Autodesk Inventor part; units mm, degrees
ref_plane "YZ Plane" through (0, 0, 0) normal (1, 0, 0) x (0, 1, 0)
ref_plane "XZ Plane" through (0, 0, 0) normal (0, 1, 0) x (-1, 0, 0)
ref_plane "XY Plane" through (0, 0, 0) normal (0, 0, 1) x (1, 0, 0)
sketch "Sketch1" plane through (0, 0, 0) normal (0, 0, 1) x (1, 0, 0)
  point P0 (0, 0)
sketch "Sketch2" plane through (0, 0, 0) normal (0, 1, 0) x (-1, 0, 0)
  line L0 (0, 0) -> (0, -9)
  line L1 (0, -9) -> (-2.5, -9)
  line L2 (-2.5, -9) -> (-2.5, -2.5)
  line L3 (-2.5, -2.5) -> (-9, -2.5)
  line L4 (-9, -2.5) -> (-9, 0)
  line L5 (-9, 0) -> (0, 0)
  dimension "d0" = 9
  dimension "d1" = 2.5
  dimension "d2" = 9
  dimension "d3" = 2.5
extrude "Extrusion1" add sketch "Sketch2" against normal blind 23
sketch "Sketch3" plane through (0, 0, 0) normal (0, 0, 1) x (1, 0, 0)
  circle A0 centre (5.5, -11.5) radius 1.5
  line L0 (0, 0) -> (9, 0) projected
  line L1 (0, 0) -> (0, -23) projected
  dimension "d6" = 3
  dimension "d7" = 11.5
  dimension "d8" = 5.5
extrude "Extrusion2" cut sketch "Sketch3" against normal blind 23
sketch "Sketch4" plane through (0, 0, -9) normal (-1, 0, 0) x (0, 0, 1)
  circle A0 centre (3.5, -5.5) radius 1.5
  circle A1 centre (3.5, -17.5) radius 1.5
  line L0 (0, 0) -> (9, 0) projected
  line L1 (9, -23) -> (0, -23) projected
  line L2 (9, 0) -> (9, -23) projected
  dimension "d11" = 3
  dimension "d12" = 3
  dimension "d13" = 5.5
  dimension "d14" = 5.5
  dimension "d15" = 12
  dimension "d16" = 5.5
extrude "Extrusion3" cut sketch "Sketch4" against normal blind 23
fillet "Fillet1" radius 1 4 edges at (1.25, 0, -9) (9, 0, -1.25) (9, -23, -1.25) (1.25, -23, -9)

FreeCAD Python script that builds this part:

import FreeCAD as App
import Part
import Sketcher
from FreeCAD import Vector
Q = App.Units.Quantity


def edges_at(feature, points):
    """Names of the edges that pass closest to the given points."""
    edges = feature.Shape.Edges
    near = lambda p: min(range(len(edges)), key=lambda i: edges[i].distToShape(Part.Vertex(*p))[0])
    return sorted({f"Edge{near(p) + 1}" for p in points})

doc = App.newDocument("Part")
params = doc.addObject("Spreadsheet::Sheet", "Params")
for row, (alias, value) in enumerate([
    ("sketch1_width", "9 mm"),
    ("sketch1_width2", "2.5 mm"),
    ("pad1_length", "23 mm"),
    ("sketch2_diameter", "3 mm"),
    ("pocket1_length", "23 mm"),
    ("sketch3_diameter", "3 mm"),
    ("pocket2_length", "23 mm"),
    ("fillet_radius", "1 mm"),
], start=1):
    params.set(f"A{row}", alias)
    params.set(f"B{row}", "=" + value)
    params.setAlias(f"B{row}", alias)

body = doc.addObject("PartDesign::Body", "Body")

# Sketch on XZ plane
sketch1 = body.newObject("Sketcher::SketchObject", "Sketch")
sketch1.AttachmentSupport = (doc.getObject("XZ_Plane"), [""])
sketch1.MapMode = "FlatFace"
sketch1.addGeometry([
    Part.LineSegment(Vector(0, -9, 0), Vector(0, 0, 0)),  # 0
    Part.LineSegment(Vector(0, 0, 0), Vector(9, 0, 0)),  # 1
    Part.LineSegment(Vector(9, 0, 0), Vector(9, -2.5, 0)),  # 2
    Part.LineSegment(Vector(9, -2.5, 0), Vector(2.5, -2.5, 0)),  # 3
    Part.LineSegment(Vector(2.5, -2.5, 0), Vector(2.5, -9, 0)),  # 4
    Part.LineSegment(Vector(2.5, -9, 0), Vector(0, -9, 0)),  # 5
], False)
sketch1.addConstraint([
    Sketcher.Constraint("Coincident", 0, 2, 1, 1),
    Sketcher.Constraint("Coincident", 1, 2, 2, 1),
    Sketcher.Constraint("Coincident", 2, 2, 3, 1),
    Sketcher.Constraint("Coincident", 3, 2, 4, 1),
    Sketcher.Constraint("Coincident", 4, 2, 5, 1),
    Sketcher.Constraint("Coincident", 5, 2, 0, 1),
    Sketcher.Constraint("Vertical", 0),
    Sketcher.Constraint("Horizontal", 1),
    Sketcher.Constraint("Vertical", 2),
    Sketcher.Constraint("Horizontal", 3),
    Sketcher.Constraint("Vertical", 4),
    Sketcher.Constraint("Horizontal", 5),
    Sketcher.Constraint("Coincident", 0, 2, -1, 1),
    Sketcher.Constraint("Equal", 1, 0),
    Sketcher.Constraint("Equal", 5, 2),
    Sketcher.Constraint("DistanceX", 1, 1, 1, 2, Q("9 mm")),
    Sketcher.Constraint("DistanceX", 5, 2, 5, 1, Q("2.5 mm")),
])
sketch1.setExpression("Constraints[15]", "Params.sketch1_width")
sketch1.setExpression("Constraints[16]", "Params.sketch1_width2")
pad1 = body.newObject("PartDesign::Pad", "Pad")
pad1.Profile = sketch1
pad1.setExpression("Length", "Params.pad1_length")

# Sketch on XY plane
sketch2 = body.newObject("Sketcher::SketchObject", "Sketch001")
sketch2.AttachmentSupport = (doc.getObject("XY_Plane"), [""])
sketch2.MapMode = "FlatFace"
sketch2.addGeometry(Part.Circle(Vector(5.5, -11.5, 0), Vector(0, 0, 1), 1.5), False)
sketch2.addConstraint([
    Sketcher.Constraint("Diameter", 0, Q("3 mm")),
    Sketcher.Constraint("DistanceX", -1, 1, 0, 3, Q("5.5 mm")),
    Sketcher.Constraint("DistanceY", 0, 3, -1, 1, Q("11.5 mm")),
])
sketch2.setExpression("Constraints[0]", "Params.sketch2_diameter")
pocket1 = body.newObject("PartDesign::Pocket", "Pocket")
pocket1.Profile = sketch2
pocket1.setExpression("Length", "Params.pocket1_length")

# Sketch on YZ plane
sketch3 = body.newObject("Sketcher::SketchObject", "Sketch002")
sketch3.AttachmentSupport = (doc.getObject("YZ_Plane"), [""])
sketch3.MapMode = "FlatFace"
sketch3.addGeometry([
    Part.Circle(Vector(-5.5, -5.5, 0), Vector(0, 0, 1), 1.5),
    Part.Circle(Vector(-17.5, -5.5, 0), Vector(0, 0, 1), 1.5),
], False)
sketch3.addConstraint([
    Sketcher.Constraint("Equal", 0, 1),
    Sketcher.Constraint("Horizontal", 0, 3, 1, 3),
    Sketcher.Constraint("Diameter", 0, Q("3 mm")),
    Sketcher.Constraint("DistanceX", 1, 3, 0, 3, Q("12 mm")),
    Sketcher.Constraint("DistanceX", 0, 3, -1, 1, Q("5.5 mm")),
    Sketcher.Constraint("DistanceY", 0, 3, -1, 1, Q("5.5 mm")),
])
sketch3.setExpression("Constraints[2]", "Params.sketch3_diameter")
pocket2 = body.newObject("PartDesign::Pocket", "Pocket001")
pocket2.Profile = sketch3
pocket2.setExpression("Length", "Params.pocket2_length")
pocket2.Reversed = True
doc.recompute()

fillet = body.newObject("PartDesign::Fillet", "Fillet")
fillet.Base = (pocket2, edges_at(pocket2, [
    (1.25, 0, -9),
    (9, 0, -1.25),
    (9, -23, -1.25),
    (1.25, -23, -9),
]))
fillet.setExpression("Radius", "Params.fillet_radius")

doc.recompute()
